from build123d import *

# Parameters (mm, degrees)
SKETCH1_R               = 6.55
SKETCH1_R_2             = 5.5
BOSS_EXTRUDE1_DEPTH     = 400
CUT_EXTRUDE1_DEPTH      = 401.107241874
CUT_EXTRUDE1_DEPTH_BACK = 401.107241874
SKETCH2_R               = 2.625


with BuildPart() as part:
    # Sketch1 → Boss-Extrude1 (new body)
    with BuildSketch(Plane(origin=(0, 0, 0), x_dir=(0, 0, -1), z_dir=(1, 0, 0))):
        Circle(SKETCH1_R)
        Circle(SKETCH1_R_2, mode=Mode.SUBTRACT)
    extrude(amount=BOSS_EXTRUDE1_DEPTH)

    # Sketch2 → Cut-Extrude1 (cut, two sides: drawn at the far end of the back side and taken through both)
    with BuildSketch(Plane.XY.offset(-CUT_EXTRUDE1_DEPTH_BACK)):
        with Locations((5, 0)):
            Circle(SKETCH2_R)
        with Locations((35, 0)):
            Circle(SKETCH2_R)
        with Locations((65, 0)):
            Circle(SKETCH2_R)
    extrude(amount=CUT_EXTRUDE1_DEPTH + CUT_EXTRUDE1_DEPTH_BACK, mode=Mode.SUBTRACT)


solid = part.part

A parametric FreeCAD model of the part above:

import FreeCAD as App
import Part
import Sketcher
from FreeCAD import Vector

doc = App.newDocument("Part")
params = doc.addObject("Spreadsheet::Sheet", "Params")
for row, (alias, value) in enumerate([
    ("sketch1_diameter", "11 mm"),
    ("sketch1_diameter2", "13.1 mm"),
    ("pad1_length", "400 mm"),
    ("sketch2_diameter", "5.25 mm"),
], start=1):
    params.set(f"A{row}", alias)
    params.set(f"B{row}", "=" + value)
    params.setAlias(f"B{row}", alias)

body = doc.addObject("PartDesign::Body", "Body")

# Sketch on YZ plane
sketch1 = body.newObject("Sketcher::SketchObject", "Sketch")
sketch1.AttachmentSupport = (doc.getObject("YZ_Plane"), [""])
sketch1.MapMode = "FlatFace"
sketch1.addGeometry([
    Part.Circle(Vector(0, 0, 0), Vector(0, 0, 1), 6.55),
    Part.Circle(Vector(0, 0, 0), Vector(0, 0, 1), 5.5),
], False)
sketch1.addConstraint([
    Sketcher.Constraint("Coincident", 0, 3, -1, 1),
    Sketcher.Constraint("Coincident", 1, 3, -1, 1),
    Sketcher.Constraint("Diameter", 1, 11.0),
    Sketcher.Constraint("Diameter", 0, 13.1),
])
sketch1.setExpression("Constraints[2]", "Params.sketch1_diameter")
sketch1.setExpression("Constraints[3]", "Params.sketch1_diameter2")
pad1 = body.newObject("PartDesign::Pad", "Pad")
pad1.Profile = sketch1
pad1.setExpression("Length", "Params.pad1_length")

# Sketch on XY plane
sketch2 = body.newObject("Sketcher::SketchObject", "Sketch001")
sketch2.AttachmentSupport = (doc.getObject("XY_Plane"), [""])
sketch2.MapMode = "FlatFace"
sketch2.addGeometry([
    Part.Circle(Vector(5, 0, 0), Vector(0, 0, 1), 2.625),
    Part.Circle(Vector(35, 0, 0), Vector(0, 0, 1), 2.625),
    Part.Circle(Vector(65, 0, 0), Vector(0, 0, 1), 2.625),
], False)
sketch2.addConstraint([
    Sketcher.Constraint("Equal", 0, 1),
    Sketcher.Constraint("Equal", 1, 2),
    Sketcher.Constraint("PointOnObject", 0, 3, -1),
    Sketcher.Constraint("PointOnObject", 1, 3, -1),
    Sketcher.Constraint("PointOnObject", 2, 3, -1),
    Sketcher.Constraint("Diameter", 0, 5.25),
    Sketcher.Constraint("DistanceX", -1, 1, 0, 3, 5.0),
    Sketcher.Constraint("DistanceX", -1, 1, 1, 3, 35.0),
    Sketcher.Constraint("DistanceX", -1, 1, 2, 3, 65.0),
])
sketch2.setExpression("Constraints[5]", "Params.sketch2_diameter")
pocket1 = body.newObject("PartDesign::Pocket", "Pocket")
pocket1.Profile = sketch2
pocket1.Type = "ThroughAll"
pocket1.Midplane = True

doc.recompute()
